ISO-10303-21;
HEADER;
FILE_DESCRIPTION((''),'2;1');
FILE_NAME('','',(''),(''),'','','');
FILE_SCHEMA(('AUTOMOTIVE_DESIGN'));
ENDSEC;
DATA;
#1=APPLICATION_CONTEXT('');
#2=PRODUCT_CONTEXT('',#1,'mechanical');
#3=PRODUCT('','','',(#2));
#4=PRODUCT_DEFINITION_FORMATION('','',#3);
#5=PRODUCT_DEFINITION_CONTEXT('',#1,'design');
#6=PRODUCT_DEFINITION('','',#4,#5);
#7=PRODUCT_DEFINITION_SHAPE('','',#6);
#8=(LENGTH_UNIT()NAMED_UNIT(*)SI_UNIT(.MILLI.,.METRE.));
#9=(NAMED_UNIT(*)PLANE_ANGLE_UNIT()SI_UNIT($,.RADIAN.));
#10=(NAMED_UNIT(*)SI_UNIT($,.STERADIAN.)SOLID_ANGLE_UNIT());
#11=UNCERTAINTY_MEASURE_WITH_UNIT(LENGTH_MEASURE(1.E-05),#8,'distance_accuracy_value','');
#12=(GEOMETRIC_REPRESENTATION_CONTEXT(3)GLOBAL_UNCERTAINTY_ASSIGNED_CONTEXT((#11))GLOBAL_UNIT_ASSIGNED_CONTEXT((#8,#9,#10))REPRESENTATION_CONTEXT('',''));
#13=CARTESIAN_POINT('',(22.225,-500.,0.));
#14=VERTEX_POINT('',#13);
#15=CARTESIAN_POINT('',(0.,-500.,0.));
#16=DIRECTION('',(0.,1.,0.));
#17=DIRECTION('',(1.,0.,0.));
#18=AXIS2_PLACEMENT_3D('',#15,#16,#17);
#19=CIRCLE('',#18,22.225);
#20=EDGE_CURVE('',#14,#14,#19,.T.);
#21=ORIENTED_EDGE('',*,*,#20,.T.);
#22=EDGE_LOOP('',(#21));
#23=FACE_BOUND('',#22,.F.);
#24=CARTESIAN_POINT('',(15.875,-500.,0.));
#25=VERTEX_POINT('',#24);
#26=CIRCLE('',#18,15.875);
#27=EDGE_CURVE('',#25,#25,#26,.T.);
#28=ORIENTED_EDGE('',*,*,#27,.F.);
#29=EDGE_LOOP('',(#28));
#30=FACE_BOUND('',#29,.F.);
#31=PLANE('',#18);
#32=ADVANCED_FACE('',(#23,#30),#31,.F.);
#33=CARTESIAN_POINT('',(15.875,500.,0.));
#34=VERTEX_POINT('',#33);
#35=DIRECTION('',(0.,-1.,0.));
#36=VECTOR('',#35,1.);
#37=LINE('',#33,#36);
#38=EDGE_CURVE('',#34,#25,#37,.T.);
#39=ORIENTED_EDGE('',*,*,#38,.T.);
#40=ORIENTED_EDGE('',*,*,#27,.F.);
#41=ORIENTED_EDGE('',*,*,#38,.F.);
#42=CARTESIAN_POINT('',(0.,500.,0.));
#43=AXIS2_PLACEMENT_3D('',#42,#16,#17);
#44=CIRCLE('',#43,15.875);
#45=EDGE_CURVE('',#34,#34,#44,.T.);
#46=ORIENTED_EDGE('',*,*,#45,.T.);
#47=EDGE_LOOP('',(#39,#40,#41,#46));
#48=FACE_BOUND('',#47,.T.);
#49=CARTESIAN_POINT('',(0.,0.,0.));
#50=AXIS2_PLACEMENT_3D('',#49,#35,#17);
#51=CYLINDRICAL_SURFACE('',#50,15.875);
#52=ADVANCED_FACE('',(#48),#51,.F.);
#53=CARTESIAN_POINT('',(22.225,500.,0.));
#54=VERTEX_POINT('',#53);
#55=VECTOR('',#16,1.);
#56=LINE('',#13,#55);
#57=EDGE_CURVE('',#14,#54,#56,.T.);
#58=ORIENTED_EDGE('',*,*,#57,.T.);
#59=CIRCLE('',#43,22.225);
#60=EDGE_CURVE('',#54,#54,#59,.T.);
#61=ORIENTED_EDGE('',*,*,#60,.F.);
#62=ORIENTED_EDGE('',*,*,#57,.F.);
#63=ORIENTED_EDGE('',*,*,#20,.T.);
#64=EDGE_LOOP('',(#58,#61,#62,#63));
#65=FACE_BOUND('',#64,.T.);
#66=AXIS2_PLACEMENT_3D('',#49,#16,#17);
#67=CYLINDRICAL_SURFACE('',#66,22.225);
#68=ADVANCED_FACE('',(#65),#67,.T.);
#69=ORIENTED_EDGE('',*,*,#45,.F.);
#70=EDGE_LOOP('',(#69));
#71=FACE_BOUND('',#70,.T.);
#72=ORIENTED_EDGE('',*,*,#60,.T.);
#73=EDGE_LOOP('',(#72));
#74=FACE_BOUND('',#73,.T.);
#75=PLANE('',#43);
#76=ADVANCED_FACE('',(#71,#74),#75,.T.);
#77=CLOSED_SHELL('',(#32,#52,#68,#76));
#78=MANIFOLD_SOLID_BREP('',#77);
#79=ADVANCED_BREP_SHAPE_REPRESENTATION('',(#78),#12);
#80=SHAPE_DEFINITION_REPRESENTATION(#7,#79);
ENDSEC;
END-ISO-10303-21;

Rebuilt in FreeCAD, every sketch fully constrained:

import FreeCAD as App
import Part
import Sketcher
Q = App.Units.Quantity

doc = App.newDocument("Part")
body = doc.addObject("PartDesign::Body", "Body")

# Sketch on XZ plane
sketch1 = body.newObject("Sketcher::SketchObject", "Sketch")
sketch1.AttachmentSupport = (doc.getObject("XZ_Plane"), [""])
sketch1.MapMode = "FlatFace"
sketch1.addGeometry([
    Part.Circle(App.Vector(0, 0, 0), App.Vector(0, 0, 1), 22),
    Part.Circle(App.Vector(0, 0, 0), App.Vector(0, 0, 1), 16),
], False)
sketch1.addConstraint([
    Sketcher.Constraint("Coincident", 0, 3, -1, 1),
    Sketcher.Constraint("Coincident", 1, 3, -1, 1),
    Sketcher.Constraint("Diameter", 0, Q("1.75 in")),
    Sketcher.Constraint("Diameter", 1, Q("1.25 in")),
])
pad1 = body.newObject("PartDesign::Pad", "Pad")
pad1.Profile = sketch1
pad1.Length = 1000
pad1.Midplane = True

doc.recompute()
